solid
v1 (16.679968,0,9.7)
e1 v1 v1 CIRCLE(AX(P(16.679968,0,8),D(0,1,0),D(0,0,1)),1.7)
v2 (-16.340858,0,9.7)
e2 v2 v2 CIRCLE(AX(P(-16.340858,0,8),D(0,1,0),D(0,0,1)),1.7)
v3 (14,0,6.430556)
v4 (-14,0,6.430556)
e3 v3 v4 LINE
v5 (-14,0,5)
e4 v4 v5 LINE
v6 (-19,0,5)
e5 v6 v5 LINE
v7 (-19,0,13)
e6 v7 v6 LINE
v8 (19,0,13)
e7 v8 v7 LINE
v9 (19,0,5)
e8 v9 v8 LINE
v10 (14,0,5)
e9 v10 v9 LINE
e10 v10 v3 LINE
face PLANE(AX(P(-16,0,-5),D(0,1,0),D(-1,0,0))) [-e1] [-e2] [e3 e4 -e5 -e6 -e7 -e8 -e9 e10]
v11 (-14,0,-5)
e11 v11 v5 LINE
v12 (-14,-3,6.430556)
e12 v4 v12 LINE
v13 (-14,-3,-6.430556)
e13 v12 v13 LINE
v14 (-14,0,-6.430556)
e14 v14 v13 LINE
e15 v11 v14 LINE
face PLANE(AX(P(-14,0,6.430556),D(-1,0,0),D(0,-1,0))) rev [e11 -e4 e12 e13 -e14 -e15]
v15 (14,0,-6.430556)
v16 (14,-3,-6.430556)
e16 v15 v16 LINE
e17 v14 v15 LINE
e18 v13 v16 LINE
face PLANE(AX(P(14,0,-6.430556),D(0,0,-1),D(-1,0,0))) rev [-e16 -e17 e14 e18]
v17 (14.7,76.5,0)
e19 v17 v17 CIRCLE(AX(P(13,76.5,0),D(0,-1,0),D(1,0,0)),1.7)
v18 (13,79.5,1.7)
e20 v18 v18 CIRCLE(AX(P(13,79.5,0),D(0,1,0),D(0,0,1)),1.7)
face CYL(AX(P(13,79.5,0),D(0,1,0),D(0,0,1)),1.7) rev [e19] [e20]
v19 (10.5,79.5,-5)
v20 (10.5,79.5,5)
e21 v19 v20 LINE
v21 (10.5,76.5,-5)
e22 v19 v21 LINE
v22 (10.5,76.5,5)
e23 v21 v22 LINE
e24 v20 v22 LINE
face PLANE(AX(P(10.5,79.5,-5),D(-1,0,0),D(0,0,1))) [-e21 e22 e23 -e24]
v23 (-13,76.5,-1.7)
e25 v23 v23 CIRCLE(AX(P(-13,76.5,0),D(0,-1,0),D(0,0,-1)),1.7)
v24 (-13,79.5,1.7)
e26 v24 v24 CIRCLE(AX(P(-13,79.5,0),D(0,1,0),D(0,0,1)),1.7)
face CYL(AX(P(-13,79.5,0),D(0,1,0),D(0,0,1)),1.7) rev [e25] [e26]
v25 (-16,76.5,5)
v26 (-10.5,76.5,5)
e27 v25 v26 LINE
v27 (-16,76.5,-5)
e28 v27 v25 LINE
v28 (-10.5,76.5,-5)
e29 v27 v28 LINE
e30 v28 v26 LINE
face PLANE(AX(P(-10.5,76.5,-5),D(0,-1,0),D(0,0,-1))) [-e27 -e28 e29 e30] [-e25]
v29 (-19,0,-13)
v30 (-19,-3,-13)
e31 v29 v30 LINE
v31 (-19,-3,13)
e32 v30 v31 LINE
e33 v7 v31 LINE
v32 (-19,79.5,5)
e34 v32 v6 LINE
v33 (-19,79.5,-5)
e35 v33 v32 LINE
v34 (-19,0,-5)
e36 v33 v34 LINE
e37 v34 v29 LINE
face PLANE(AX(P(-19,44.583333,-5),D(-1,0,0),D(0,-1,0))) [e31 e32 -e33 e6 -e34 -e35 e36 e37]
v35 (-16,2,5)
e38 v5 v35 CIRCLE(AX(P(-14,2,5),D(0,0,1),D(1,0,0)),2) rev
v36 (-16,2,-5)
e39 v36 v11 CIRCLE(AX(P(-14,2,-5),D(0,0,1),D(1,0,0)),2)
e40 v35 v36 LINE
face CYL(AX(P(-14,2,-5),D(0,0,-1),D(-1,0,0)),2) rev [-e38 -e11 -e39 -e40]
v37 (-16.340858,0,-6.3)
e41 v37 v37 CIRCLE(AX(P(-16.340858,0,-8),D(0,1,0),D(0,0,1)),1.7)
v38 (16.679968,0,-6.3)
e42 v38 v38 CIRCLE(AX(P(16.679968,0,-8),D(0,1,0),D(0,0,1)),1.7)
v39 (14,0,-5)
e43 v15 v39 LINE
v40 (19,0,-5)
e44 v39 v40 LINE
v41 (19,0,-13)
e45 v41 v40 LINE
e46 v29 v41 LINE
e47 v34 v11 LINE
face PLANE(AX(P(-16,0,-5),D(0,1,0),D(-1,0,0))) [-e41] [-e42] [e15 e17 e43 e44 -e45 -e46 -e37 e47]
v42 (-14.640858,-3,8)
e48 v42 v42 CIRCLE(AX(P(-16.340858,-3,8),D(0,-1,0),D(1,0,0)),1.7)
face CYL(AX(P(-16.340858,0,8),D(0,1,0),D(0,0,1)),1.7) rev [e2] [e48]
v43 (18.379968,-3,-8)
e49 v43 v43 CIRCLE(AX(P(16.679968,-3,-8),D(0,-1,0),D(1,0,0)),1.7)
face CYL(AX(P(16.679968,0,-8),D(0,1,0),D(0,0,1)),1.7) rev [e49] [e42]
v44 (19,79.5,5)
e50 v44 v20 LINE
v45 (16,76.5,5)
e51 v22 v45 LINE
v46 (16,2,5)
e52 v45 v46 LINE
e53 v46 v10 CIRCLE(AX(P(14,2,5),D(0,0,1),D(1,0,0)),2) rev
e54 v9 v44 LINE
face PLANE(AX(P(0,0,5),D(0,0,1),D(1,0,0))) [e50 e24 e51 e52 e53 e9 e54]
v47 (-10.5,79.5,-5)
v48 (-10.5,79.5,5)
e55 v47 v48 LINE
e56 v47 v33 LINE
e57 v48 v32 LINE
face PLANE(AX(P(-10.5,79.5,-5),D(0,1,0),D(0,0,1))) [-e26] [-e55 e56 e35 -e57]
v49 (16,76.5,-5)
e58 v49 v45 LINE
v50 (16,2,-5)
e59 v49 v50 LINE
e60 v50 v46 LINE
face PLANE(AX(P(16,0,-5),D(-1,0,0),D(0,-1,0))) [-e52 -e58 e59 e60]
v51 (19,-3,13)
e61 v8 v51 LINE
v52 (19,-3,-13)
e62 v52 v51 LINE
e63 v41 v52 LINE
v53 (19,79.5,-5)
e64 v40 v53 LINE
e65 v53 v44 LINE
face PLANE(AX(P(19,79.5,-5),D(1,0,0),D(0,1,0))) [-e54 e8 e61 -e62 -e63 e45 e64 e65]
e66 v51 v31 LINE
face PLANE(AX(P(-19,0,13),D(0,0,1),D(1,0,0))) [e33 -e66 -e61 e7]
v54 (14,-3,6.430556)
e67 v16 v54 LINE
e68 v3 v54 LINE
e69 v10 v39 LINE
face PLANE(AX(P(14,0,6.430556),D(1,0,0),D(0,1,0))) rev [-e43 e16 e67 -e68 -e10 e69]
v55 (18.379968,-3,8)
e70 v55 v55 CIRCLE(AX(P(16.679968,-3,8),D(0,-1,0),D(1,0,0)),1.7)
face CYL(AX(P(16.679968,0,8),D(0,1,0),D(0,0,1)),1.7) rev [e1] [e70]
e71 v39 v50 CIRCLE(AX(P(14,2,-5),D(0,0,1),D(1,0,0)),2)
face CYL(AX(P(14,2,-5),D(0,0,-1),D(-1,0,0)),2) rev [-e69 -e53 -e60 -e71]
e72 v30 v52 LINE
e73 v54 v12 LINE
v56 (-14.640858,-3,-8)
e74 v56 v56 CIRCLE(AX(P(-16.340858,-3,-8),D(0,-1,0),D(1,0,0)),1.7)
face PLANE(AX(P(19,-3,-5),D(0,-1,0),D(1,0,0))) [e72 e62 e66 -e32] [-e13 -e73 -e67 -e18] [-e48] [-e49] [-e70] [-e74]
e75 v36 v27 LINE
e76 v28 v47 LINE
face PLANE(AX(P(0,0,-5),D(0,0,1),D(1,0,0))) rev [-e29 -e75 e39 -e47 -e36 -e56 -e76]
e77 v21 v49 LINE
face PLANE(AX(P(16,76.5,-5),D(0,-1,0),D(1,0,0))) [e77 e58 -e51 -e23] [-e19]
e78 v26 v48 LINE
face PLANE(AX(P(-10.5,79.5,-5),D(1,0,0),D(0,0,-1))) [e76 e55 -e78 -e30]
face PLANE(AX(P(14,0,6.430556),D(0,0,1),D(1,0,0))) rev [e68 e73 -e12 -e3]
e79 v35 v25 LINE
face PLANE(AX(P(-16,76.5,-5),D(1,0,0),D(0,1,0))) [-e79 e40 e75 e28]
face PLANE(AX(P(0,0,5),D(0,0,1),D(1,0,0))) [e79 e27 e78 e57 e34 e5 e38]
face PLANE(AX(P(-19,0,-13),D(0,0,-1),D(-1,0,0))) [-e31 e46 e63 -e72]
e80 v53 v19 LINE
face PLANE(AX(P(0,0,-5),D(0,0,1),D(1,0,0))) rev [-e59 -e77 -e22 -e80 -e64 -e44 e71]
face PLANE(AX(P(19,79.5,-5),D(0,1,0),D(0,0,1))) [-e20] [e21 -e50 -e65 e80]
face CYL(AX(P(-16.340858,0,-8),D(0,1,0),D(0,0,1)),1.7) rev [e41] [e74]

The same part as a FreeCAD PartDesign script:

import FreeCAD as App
import Part
import Sketcher

V = App.Vector


def edges_at(feature, points):
    """Names of the edges that pass closest to the given points."""
    edges = feature.Shape.Edges
    near = lambda p: min(range(len(edges)), key=lambda i: edges[i].distToShape(Part.Vertex(*p))[0])
    return sorted({f"Edge{near(p) + 1}" for p in points})


def add_polygon(sketch, points):
    """Adds a closed chain of lines whose ends are joined by coincident constraints."""
    first, n = sketch.GeometryCount, len(points)
    for a, b in zip(points, points[1:] + points[:1]):
        sketch.addGeometry(Part.LineSegment(App.Vector(*a, 0), App.Vector(*b, 0)), False)
    for i in range(n):
        sketch.addConstraint(Sketcher.Constraint("Coincident", first + i, 2, first + (i + 1) % n, 1))

doc = App.newDocument("Part")
body = doc.addObject("PartDesign::Body", "Body")

# Sketch on XY plane
sketch1 = doc.addObject("Sketcher::SketchObject", "Sketch")
body.addObject(sketch1)
sketch1.AttachmentSupport = (doc.XY_Plane, [""])
sketch1.MapMode = "FlatFace"
add_polygon(sketch1, [(-19, -3), (19, -3), (19, 79.5), (10.5, 79.5), (10.5, 76.5), (16, 76.5), (16, 0), (-16, 0), (-16, 76.5), (-10.5, 76.5), (-10.5, 79.5), (-19, 79.5)])  # lines 0-11
sketch1.addConstraint([
    Sketcher.Constraint("Horizontal", 0),
    Sketcher.Constraint("Vertical", 1),
    Sketcher.Constraint("Horizontal", 2),
    Sketcher.Constraint("Vertical", 3),
    Sketcher.Constraint("Horizontal", 4),
    Sketcher.Constraint("Vertical", 5),
    Sketcher.Constraint("Horizontal", 6),
    Sketcher.Constraint("Vertical", 7),
    Sketcher.Constraint("Horizontal", 8),
    Sketcher.Constraint("Vertical", 9),
    Sketcher.Constraint("Horizontal", 10),
    Sketcher.Constraint("Vertical", 11),
    Sketcher.Constraint("Symmetric", 5, 2, 6, 2, -1, 1),
    Sketcher.Constraint("Symmetric", 3, 2, 8, 2, -2),
    Sketcher.Constraint("Symmetric", 1, 2, 10, 2, -2),
    Sketcher.Constraint("DistanceX", 0, 1, 0, 2, 38.0),
    Sketcher.Constraint("DistanceX", 6, 2, 6, 1, 32.0),
    Sketcher.Constraint("DistanceY", 3, 2, 3, 1, 3.0),
    Sketcher.Constraint("DistanceX", 2, 2, 2, 1, 8.5),
    Sketcher.Constraint("DistanceY", 1, 1, 1, 2, 82.5),
    Sketcher.Constraint("DistanceY", 5, 2, 5, 1, 76.5),
])
pad1 = doc.addObject("PartDesign::Pad", "Pad")
body.addObject(pad1)
pad1.Profile = sketch1
pad1.Type = "TwoLengths"
pad1.Length = 5
pad1.Length2 = 5

# Sketch on XZ plane
sketch2 = doc.addObject("Sketcher::SketchObject", "Sketch001")
body.addObject(sketch2)
sketch2.AttachmentSupport = (doc.XZ_Plane, [""])
sketch2.MapMode = "FlatFace"
sketch2.AttachmentOffset = App.Placement(V(0, 0, 3), App.Rotation())
add_polygon(sketch2, [(19, -13), (19, 13), (-19, 13), (-19, -13)])  # lines 0-3
sketch2.addConstraint([
    Sketcher.Constraint("Vertical", 0),
    Sketcher.Constraint("Horizontal", 1),
    Sketcher.Constraint("Vertical", 2),
    Sketcher.Constraint("Horizontal", 3),
    Sketcher.Constraint("Symmetric", 0, 2, 2, 2, -1, 1),
    Sketcher.Constraint("DistanceX", 1, 2, 1, 1, 38.0),
    Sketcher.Constraint("DistanceY", 0, 1, 0, 2, 26.0),
])
pad2 = doc.addObject("PartDesign::Pad", "Pad001")
body.addObject(pad2)
pad2.Profile = sketch2
pad2.Length = 3
pad2.Reversed = True

# Sketch on XZ plane
sketch3 = doc.addObject("Sketcher::SketchObject", "Sketch002")
body.addObject(sketch3)
sketch3.AttachmentSupport = (doc.XZ_Plane, [""])
sketch3.MapMode = "FlatFace"
sketch3.AttachmentOffset = App.Placement(V(0, 0, -79.5), App.Rotation())
sketch3.addGeometry([
    Part.Circle(V(-13, 0, 0), V(0, 0, 1), 1.7),
    Part.Circle(V(13, 0, 0), V(0, 0, 1), 1.7),
], False)
sketch3.addConstraint([
    Sketcher.Constraint("Equal", 0, 1),
    Sketcher.Constraint("Symmetric", 0, 3, 1, 3, -1, 1),
    Sketcher.Constraint("PointOnObject", 0, 3, -1),
    Sketcher.Constraint("Diameter", 0, 3.4),
    Sketcher.Constraint("DistanceX", 0, 3, -1, 1, 13.0),
])
doc.recompute()
hole = doc.addObject("PartDesign::Hole", "Hole")
body.addObject(hole)
hole.Profile = sketch3
hole.ThreadType = "None"
hole.Diameter = 3.4
hole.DepthType = "Dimension"
hole.Depth = 3
hole.DrillPoint = "Flat"
hole.Reversed = True
doc.recompute()

fillet = doc.addObject("PartDesign::Fillet", "Fillet")
body.addObject(fillet)
fillet.Base = (hole, edges_at(hole, [(-16, 0, 0), (16, 0, 0)]))
fillet.Radius = 2

# Sketch on XZ plane
sketch4 = doc.addObject("Sketcher::SketchObject", "Sketch003")
body.addObject(sketch4)
sketch4.AttachmentSupport = (doc.XZ_Plane, [""])
sketch4.MapMode = "FlatFace"
sketch4.addGeometry([
    Part.Circle(V(16.7, 8, 0), V(0, 0, 1), 1.7),
    Part.Circle(V(-16.3, 8, 0), V(0, 0, 1), 1.7),
    Part.Circle(V(16.7, -8, 0), V(0, 0, 1), 1.7),
    Part.Circle(V(-16.3, -8, 0), V(0, 0, 1), 1.7),
], False)
sketch4.addConstraint([
    Sketcher.Constraint("Equal", 0, 1),
    Sketcher.Constraint("Equal", 1, 2),
    Sketcher.Constraint("Equal", 2, 3),
    Sketcher.Constraint("Symmetric", 0, 3, 2, 3, -1),
    Sketcher.Constraint("Symmetric", 1, 3, 3, 3, -1),
    Sketcher.Constraint("Horizontal", 0, 3, 1, 3),
    Sketcher.Constraint("Diameter", 0, 3.4),
    Sketcher.Constraint("DistanceY", -1, 1, 0, 3, 8.0),
    Sketcher.Constraint("DistanceX", -1, 1, 0, 3, 16.679968),
    Sketcher.Constraint("DistanceX", 1, 3, -1, 1, 16.340858),
])
doc.recompute()
hole2 = doc.addObject("PartDesign::Hole", "Hole001")
body.addObject(hole2)
hole2.Profile = sketch4
hole2.ThreadType = "None"
hole2.Diameter = 3.4
hole2.DepthType = "Dimension"
hole2.Depth = 10
hole2.DrillPoint = "Angled"
hole2.DrillPointAngle = 118
hole2.Reversed = True

# Sketch on XZ plane
sketch5 = doc.addObject("Sketcher::SketchObject", "Sketch004")
body.addObject(sketch5)
sketch5.AttachmentSupport = (doc.XZ_Plane, [""])
sketch5.MapMode = "FlatFace"
sketch5.AttachmentOffset = App.Placement(V(0, 0, 3), App.Rotation())
add_polygon(sketch5, [(-14, 6), (-14, -6), (14, -6), (14, 6)])  # lines 0-3
sketch5.addConstraint([
    Sketcher.Constraint("Vertical", 0),
    Sketcher.Constraint("Horizontal", 1),
    Sketcher.Constraint("Vertical", 2),
    Sketcher.Constraint("Horizontal", 3),
    Sketcher.Constraint("Symmetric", 0, 2, 2, 2, -1, 1),
    Sketcher.Constraint("DistanceX", 1, 1, 1, 2, 28.0),
    Sketcher.Constraint("DistanceY", 0, 2, 0, 1, 12.861113),
])
pocket1 = doc.addObject("PartDesign::Pocket", "Pocket")
body.addObject(pocket1)
pocket1.Profile = sketch5
pocket1.Length = 3

doc.recompute()
